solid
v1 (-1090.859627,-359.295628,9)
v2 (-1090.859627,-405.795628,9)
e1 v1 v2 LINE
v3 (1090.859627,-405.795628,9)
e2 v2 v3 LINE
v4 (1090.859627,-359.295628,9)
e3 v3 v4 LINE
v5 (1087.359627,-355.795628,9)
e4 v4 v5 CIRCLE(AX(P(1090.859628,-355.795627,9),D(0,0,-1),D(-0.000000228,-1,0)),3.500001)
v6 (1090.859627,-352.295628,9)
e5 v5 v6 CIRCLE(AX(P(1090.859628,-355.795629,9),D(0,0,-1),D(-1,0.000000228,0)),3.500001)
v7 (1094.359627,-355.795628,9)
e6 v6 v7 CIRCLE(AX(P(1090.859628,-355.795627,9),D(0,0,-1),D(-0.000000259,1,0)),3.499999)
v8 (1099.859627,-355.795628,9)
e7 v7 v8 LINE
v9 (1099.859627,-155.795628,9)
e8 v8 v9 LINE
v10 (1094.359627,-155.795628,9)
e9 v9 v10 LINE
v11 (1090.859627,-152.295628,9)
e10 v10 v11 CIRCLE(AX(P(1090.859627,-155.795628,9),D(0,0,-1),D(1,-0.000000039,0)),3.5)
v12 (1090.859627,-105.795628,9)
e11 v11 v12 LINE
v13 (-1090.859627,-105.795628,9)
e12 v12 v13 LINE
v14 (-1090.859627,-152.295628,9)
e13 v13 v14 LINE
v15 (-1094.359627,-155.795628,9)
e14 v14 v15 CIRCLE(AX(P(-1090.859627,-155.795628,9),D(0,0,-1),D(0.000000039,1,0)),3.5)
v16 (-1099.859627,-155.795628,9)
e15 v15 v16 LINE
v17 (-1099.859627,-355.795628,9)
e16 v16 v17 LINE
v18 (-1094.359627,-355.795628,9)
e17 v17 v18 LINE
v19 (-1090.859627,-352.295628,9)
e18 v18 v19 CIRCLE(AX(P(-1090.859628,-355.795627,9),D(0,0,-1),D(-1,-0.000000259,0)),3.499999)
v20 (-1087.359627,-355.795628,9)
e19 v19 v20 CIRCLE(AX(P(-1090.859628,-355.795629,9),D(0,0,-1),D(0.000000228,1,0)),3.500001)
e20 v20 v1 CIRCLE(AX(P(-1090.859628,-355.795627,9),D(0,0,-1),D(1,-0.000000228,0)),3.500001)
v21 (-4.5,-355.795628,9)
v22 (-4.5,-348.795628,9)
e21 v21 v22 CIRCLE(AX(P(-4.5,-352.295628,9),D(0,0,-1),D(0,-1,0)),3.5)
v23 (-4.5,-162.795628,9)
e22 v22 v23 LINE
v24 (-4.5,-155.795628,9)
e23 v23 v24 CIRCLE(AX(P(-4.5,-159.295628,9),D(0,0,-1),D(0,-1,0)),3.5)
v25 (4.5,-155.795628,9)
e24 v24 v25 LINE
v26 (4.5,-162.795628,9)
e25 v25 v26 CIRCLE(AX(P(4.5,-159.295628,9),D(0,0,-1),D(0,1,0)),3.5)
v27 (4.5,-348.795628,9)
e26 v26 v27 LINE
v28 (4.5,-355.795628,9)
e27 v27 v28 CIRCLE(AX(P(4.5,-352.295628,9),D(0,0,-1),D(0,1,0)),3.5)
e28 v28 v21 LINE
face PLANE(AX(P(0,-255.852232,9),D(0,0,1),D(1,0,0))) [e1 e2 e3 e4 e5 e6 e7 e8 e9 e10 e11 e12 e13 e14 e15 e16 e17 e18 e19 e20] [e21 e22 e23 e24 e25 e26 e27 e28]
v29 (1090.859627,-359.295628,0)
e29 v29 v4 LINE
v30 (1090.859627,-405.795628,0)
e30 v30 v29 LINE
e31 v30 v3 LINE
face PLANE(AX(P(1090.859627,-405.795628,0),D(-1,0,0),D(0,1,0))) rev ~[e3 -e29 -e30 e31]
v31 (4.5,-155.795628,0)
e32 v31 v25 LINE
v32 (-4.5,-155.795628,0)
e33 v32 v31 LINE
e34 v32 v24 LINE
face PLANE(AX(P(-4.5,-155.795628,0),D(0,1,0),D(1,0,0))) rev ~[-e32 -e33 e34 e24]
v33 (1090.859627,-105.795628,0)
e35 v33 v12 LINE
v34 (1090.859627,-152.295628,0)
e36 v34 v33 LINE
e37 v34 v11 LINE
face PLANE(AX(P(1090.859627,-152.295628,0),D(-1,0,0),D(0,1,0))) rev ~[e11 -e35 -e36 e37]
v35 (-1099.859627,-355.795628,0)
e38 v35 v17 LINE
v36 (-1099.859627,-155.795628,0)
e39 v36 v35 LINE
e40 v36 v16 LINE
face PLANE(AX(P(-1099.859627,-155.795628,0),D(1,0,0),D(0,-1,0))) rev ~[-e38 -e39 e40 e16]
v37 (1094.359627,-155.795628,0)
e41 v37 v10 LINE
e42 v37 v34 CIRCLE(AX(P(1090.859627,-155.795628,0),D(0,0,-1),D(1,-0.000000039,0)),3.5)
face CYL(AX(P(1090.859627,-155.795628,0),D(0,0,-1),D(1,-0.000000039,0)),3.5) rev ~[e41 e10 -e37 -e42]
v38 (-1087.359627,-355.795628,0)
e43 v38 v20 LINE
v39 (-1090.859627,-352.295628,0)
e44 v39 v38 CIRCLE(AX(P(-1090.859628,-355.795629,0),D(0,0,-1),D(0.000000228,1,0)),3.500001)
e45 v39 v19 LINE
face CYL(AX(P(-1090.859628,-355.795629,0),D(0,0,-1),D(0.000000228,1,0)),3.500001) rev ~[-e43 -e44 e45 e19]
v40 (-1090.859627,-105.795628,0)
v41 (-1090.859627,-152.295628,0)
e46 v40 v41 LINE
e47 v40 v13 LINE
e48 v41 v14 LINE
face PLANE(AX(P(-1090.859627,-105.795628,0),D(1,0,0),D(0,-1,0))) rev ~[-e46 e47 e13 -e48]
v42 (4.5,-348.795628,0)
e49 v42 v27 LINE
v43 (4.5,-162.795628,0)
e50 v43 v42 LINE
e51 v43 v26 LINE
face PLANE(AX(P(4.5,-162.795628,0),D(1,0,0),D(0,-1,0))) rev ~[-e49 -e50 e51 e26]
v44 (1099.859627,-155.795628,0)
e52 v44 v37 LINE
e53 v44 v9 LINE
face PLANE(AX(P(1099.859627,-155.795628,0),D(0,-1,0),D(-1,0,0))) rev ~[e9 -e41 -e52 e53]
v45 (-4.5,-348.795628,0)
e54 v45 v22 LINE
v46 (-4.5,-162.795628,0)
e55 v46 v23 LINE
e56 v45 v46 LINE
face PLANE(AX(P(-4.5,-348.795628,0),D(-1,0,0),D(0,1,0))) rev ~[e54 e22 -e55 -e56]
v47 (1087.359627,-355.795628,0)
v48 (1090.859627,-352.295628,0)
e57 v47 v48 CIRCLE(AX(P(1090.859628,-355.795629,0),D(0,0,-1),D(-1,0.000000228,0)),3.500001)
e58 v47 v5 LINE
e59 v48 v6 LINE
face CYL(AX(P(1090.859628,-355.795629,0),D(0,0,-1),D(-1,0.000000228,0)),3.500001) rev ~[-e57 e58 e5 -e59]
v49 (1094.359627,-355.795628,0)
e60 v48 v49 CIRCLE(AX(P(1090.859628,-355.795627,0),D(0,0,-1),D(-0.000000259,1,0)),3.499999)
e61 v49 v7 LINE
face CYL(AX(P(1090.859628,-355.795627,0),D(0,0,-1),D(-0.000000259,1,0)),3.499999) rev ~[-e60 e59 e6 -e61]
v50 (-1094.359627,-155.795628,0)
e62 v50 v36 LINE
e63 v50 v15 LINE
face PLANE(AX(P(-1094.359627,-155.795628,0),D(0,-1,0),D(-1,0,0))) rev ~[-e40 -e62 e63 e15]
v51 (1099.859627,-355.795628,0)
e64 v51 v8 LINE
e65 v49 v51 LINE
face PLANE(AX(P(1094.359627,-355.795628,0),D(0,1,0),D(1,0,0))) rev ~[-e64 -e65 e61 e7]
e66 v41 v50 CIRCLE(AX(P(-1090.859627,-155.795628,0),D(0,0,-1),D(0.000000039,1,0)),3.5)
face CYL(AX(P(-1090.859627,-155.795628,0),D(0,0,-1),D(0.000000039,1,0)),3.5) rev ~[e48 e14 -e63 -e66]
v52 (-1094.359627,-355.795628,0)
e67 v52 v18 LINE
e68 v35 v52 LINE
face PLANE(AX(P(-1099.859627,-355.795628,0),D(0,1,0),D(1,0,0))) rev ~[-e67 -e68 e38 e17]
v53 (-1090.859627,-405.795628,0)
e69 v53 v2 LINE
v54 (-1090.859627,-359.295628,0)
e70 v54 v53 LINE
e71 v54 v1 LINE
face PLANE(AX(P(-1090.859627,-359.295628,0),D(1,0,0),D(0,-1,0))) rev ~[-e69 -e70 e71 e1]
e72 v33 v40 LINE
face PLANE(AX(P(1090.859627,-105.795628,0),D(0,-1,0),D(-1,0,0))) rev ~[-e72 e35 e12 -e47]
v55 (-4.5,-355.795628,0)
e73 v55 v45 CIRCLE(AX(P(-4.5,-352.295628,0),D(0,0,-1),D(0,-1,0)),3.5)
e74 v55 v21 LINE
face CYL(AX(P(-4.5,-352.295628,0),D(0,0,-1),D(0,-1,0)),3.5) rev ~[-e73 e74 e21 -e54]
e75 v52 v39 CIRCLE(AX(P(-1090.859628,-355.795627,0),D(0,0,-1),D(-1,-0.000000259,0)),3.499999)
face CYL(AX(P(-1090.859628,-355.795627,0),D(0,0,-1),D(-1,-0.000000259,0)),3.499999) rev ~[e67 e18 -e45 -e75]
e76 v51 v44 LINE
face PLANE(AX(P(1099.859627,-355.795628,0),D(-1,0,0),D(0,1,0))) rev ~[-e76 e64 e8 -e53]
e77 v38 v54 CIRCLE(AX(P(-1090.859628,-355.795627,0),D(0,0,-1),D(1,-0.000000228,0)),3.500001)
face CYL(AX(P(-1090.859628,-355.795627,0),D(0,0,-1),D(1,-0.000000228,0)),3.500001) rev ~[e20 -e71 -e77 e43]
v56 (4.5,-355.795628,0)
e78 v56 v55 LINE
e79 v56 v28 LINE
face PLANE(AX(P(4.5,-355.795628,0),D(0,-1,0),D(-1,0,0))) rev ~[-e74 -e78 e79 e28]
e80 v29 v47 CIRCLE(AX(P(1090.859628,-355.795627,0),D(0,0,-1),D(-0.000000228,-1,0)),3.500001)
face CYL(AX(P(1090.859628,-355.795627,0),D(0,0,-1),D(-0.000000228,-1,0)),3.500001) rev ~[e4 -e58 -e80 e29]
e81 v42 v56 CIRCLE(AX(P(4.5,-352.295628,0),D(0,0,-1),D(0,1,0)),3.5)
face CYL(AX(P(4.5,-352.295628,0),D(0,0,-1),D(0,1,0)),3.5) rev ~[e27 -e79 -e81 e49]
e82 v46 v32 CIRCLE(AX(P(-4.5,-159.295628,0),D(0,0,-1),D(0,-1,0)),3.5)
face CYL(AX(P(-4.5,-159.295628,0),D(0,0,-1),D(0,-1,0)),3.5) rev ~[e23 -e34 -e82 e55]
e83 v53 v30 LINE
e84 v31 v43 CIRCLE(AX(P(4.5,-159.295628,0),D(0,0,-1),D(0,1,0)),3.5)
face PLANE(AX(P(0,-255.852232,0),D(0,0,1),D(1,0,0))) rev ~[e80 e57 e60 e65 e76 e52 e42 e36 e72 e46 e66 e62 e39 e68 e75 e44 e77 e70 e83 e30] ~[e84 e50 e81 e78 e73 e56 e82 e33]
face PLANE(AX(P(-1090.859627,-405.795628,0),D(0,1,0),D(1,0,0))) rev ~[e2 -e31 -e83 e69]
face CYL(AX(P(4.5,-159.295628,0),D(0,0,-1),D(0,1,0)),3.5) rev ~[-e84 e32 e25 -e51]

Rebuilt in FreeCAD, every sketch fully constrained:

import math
import FreeCAD as App
import Part
import Sketcher

V = App.Vector
Q = App.Units.Quantity

doc = App.newDocument("Part")
body = doc.addObject("PartDesign::Body", "Body")

# Sketch on XY plane
sketch1 = doc.addObject("Sketcher::SketchObject", "Sketch")
body.addObject(sketch1)
sketch1.AttachmentSupport = (doc.XY_Plane, [""])
sketch1.MapMode = "FlatFace"
sketch1.addGeometry([
    Part.LineSegment(V(1090.9, -105.8, 0), V(-1090.9, -105.8, 0)),  # 0
    Part.LineSegment(V(-1090.9, -105.8, 0), V(-1090.9, -152.3, 0)),  # 1
    Part.ArcOfCircle(Part.Circle(V(-1090.9, -155.8, 0), V(0, 0, 1), 3.5), math.radians(-180), math.radians(90)),  # 2
    Part.LineSegment(V(-1094.4, -155.8, 0), V(-1099.9, -155.8, 0)),  # 3
    Part.LineSegment(V(-1099.9, -155.8, 0), V(-1099.9, -355.8, 0)),  # 4
    Part.LineSegment(V(-1099.9, -355.8, 0), V(-1094.4, -355.8, 0)),  # 5
    Part.ArcOfCircle(Part.Circle(V(-1090.9, -355.8, 0), V(0, 0, 1), 3.5), math.radians(90), math.radians(180)),  # 6
    Part.ArcOfCircle(Part.Circle(V(-1090.9, -355.8, 0), V(0, 0, 1), 3.5), math.radians(0), math.radians(90)),  # 7
    Part.ArcOfCircle(Part.Circle(V(-1090.9, -355.8, 0), V(0, 0, 1), 3.5), math.radians(-90), math.radians(0)),  # 8
    Part.LineSegment(V(-1090.9, -359.3, 0), V(-1090.9, -405.8, 0)),  # 9
    Part.LineSegment(V(-1090.9, -405.8, 0), V(1090.9, -405.8, 0)),  # 10
    Part.LineSegment(V(1090.9, -405.8, 0), V(1090.9, -359.3, 0)),  # 11
    Part.ArcOfCircle(Part.Circle(V(1090.9, -355.8, 0), V(0, 0, 1), 3.5), math.radians(-180), math.radians(-90)),  # 12
    Part.ArcOfCircle(Part.Circle(V(1090.9, -355.8, 0), V(0, 0, 1), 3.5), math.radians(90), math.radians(180)),  # 13
    Part.ArcOfCircle(Part.Circle(V(1090.9, -355.8, 0), V(0, 0, 1), 3.5), math.radians(0), math.radians(90)),  # 14
    Part.LineSegment(V(1094.4, -355.8, 0), V(1099.9, -355.8, 0)),  # 15
    Part.LineSegment(V(1099.9, -355.8, 0), V(1099.9, -155.8, 0)),  # 16
    Part.LineSegment(V(1099.9, -155.8, 0), V(1094.4, -155.8, 0)),  # 17
    Part.ArcOfCircle(Part.Circle(V(1090.9, -155.8, 0), V(0, 0, 1), 3.5), math.radians(90), math.radians(360)),  # 18
    Part.LineSegment(V(1090.9, -152.3, 0), V(1090.9, -105.8, 0)),  # 19
    Part.LineSegment(V(-4.5, -155.8, 0), V(4.5, -155.8, 0)),  # 20
    Part.ArcOfCircle(Part.Circle(V(4.5, -159.3, 0), V(0, 0, 1), 3.5), math.radians(-90), math.radians(90)),  # 21
    Part.LineSegment(V(4.5, -162.8, 0), V(4.5, -348.8, 0)),  # 22
    Part.ArcOfCircle(Part.Circle(V(4.5, -352.3, 0), V(0, 0, 1), 3.5), math.radians(-90), math.radians(90)),  # 23
    Part.LineSegment(V(4.5, -355.8, 0), V(-4.5, -355.8, 0)),  # 24
    Part.ArcOfCircle(Part.Circle(V(-4.5, -352.3, 0), V(0, 0, 1), 3.5), math.radians(90), math.radians(270)),  # 25
    Part.LineSegment(V(-4.5, -348.8, 0), V(-4.5, -162.8, 0)),  # 26
    Part.ArcOfCircle(Part.Circle(V(-4.5, -159.3, 0), V(0, 0, 1), 3.5), math.radians(90), math.radians(270)),  # 27
], False)
sketch1.addConstraint([
    Sketcher.Constraint("Coincident", 0, 2, 1, 1),
    Sketcher.Constraint("Coincident", 1, 2, 2, 2),
    Sketcher.Constraint("Coincident", 2, 1, 3, 1),
    Sketcher.Constraint("Coincident", 3, 2, 4, 1),
    Sketcher.Constraint("Coincident", 4, 2, 5, 1),
    Sketcher.Constraint("Coincident", 5, 2, 6, 2),
    Sketcher.Constraint("Tangent", 6, 1, 7, 2),
    Sketcher.Constraint("Tangent", 7, 1, 8, 2),
    Sketcher.Constraint("Coincident", 8, 1, 9, 1),
    Sketcher.Constraint("Coincident", 9, 2, 10, 1),
    Sketcher.Constraint("Coincident", 10, 2, 11, 1),
    Sketcher.Constraint("Coincident", 11, 2, 12, 2),
    Sketcher.Constraint("Tangent", 12, 1, 13, 2),
    Sketcher.Constraint("Tangent", 13, 1, 14, 2),
    Sketcher.Constraint("Coincident", 14, 1, 15, 1),
    Sketcher.Constraint("Coincident", 15, 2, 16, 1),
    Sketcher.Constraint("Coincident", 16, 2, 17, 1),
    Sketcher.Constraint("Coincident", 17, 2, 18, 2),
    Sketcher.Constraint("Coincident", 18, 1, 19, 1),
    Sketcher.Constraint("Coincident", 19, 2, 0, 1),
    Sketcher.Constraint("Tangent", 20, 2, 21, 2),
    Sketcher.Constraint("Coincident", 21, 1, 22, 1),
    Sketcher.Constraint("Coincident", 22, 2, 23, 2),
    Sketcher.Constraint("Tangent", 23, 1, 24, 1),
    Sketcher.Constraint("Tangent", 24, 2, 25, 2),
    Sketcher.Constraint("Coincident", 25, 1, 26, 1),
    Sketcher.Constraint("Coincident", 26, 2, 27, 2),
    Sketcher.Constraint("Tangent", 27, 1, 20, 1),
    Sketcher.Constraint("Horizontal", 0),
    Sketcher.Constraint("Vertical", 1),
    Sketcher.Constraint("Horizontal", 3),
    Sketcher.Constraint("Vertical", 4),
    Sketcher.Constraint("Horizontal", 5),
    Sketcher.Constraint("Vertical", 9),
    Sketcher.Constraint("Horizontal", 10),
    Sketcher.Constraint("Vertical", 11),
    Sketcher.Constraint("Horizontal", 15),
    Sketcher.Constraint("Vertical", 16),
    Sketcher.Constraint("Horizontal", 17),
    Sketcher.Constraint("Vertical", 19),
    Sketcher.Constraint("Horizontal", 20),
    Sketcher.Constraint("Vertical", 22),
    Sketcher.Constraint("Horizontal", 24),
    Sketcher.Constraint("Vertical", 26),
    Sketcher.Constraint("Coincident", 8, 3, 6, 3),
    Sketcher.Constraint("Coincident", 14, 3, 12, 3),
    Sketcher.Constraint("Equal", 2, 6),
    Sketcher.Constraint("Equal", 8, 12),
    Sketcher.Constraint("Equal", 14, 18),
    Sketcher.Constraint("Equal", 18, 21),
    Sketcher.Constraint("Equal", 21, 23),
    Sketcher.Constraint("Equal", 23, 25),
    Sketcher.Constraint("Equal", 25, 27),
    Sketcher.Constraint("Symmetric", 6, 3, 12, 3, -2),
    Sketcher.Constraint("Symmetric", 2, 3, 18, 3, -2),
    Sketcher.Constraint("Symmetric", 4, 2, 15, 2, -2),
    Sketcher.Constraint("Horizontal", 18, 3, 2, 1),
    Sketcher.Constraint("Horizontal", 14, 3, 4, 2),
    Sketcher.Constraint("Horizontal", 25, 3, 6, 1),
    Sketcher.Constraint("Horizontal", 5, 2, 7, 1),
    Sketcher.Constraint("Horizontal", 7, 1, 12, 1),
    Sketcher.Constraint("Horizontal", 3, 2, 16, 2),
    Sketcher.Constraint("Horizontal", 17, 2, 20, 2),
    Sketcher.Constraint("Vertical", 2, 3, 6, 3),
    Sketcher.Constraint("Vertical", 21, 3, 23, 3),
    Sketcher.Constraint("Vertical", 25, 3, 27, 3),
    Sketcher.Constraint("Vertical", 8, 3, 0, 2),
    Sketcher.Constraint("Vertical", 1, 2, 6, 1),
    Sketcher.Constraint("Vertical", 6, 1, 8, 1),
    Sketcher.Constraint("Vertical", 18, 3, 10, 2),
    Sketcher.Constraint("Vertical", 11, 2, 13, 1),
    Sketcher.Constraint("Vertical", 13, 1, 18, 1),
    Sketcher.Constraint("Vertical", 20, 2, 21, 1),
    Sketcher.Constraint("Vertical", 24, 2, 25, 1),
    Sketcher.Constraint("Equal", 1, 9),
    Sketcher.Constraint("Radius", 2, Q("3.5 mm")),
    Sketcher.Constraint("DistanceX", 20, 1, 20, 2, Q("9 mm")),
    Sketcher.Constraint("DistanceY", 4, 2, 4, 1, Q("200 mm")),
    Sketcher.Constraint("DistanceX", 3, 2, 3, 1, Q("5.5 mm")),
    Sketcher.Constraint("DistanceY", 1, 2, 1, 1, Q("46.5 mm")),
    Sketcher.Constraint("DistanceX", -1, 1, 21, 3, Q("4.5 mm")),
    Sketcher.Constraint("DistanceX", 0, 2, 0, 1, Q("2181.719254 mm")),
    Sketcher.Constraint("DistanceY", 7, 3, -1, 1, Q("355.795629 mm")),
])
pad1 = doc.addObject("PartDesign::Pad", "Pad")
body.addObject(pad1)
pad1.Profile = sketch1
pad1.Length = 9

doc.recompute()
